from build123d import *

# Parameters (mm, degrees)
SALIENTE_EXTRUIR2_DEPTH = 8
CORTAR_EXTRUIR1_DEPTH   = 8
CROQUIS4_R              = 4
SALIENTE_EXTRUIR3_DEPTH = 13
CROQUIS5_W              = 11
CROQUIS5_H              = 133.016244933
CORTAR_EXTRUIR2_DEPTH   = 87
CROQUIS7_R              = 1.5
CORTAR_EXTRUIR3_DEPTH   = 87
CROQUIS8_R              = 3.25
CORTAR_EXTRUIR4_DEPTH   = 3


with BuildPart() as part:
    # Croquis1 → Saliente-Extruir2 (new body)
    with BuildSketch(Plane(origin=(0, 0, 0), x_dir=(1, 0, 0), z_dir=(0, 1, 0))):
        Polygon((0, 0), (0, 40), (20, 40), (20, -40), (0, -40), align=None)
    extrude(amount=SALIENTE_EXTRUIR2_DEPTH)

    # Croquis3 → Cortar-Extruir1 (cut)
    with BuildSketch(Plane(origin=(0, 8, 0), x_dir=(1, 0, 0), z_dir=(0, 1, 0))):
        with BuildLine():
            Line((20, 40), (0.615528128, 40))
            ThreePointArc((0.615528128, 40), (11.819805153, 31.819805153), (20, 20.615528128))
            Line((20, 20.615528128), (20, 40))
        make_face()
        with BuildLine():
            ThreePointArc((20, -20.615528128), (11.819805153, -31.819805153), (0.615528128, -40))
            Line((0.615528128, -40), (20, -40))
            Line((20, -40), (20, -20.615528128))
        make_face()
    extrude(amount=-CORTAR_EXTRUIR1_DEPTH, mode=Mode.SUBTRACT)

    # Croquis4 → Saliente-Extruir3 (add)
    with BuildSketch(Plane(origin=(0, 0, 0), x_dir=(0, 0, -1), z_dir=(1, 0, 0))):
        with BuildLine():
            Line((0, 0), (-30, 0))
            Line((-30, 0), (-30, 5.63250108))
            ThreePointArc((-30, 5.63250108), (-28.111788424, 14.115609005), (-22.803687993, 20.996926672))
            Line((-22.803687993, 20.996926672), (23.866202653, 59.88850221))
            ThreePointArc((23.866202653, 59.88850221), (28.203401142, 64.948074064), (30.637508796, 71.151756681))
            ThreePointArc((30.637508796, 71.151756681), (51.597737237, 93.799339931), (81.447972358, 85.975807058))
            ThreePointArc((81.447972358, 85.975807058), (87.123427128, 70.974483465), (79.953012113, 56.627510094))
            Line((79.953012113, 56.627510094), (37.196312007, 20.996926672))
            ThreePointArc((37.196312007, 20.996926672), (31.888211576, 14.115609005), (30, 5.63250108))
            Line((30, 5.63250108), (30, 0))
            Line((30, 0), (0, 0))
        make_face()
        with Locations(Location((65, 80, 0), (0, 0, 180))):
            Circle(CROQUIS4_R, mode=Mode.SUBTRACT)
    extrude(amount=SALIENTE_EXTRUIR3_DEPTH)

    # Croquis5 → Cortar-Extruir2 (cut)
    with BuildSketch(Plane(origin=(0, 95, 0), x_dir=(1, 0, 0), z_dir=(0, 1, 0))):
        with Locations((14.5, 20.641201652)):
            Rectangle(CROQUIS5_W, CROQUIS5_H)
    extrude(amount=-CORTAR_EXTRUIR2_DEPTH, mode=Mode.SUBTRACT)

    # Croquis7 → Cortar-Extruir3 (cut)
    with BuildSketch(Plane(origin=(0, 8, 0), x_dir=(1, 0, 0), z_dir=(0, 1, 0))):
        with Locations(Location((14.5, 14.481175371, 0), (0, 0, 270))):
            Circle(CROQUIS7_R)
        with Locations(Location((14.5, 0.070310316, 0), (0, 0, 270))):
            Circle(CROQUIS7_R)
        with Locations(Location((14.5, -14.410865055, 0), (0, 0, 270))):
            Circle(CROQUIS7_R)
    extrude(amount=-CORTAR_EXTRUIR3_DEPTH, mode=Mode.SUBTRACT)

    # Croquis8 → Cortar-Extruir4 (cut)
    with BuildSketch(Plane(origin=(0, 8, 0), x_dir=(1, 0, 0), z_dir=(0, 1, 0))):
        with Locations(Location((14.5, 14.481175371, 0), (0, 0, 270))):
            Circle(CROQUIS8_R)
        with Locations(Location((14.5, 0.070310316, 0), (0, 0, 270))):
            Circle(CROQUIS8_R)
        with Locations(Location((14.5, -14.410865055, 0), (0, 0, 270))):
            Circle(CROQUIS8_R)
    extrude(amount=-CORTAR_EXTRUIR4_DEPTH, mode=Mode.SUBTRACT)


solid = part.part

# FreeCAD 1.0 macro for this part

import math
import FreeCAD as App
import Part
import Sketcher

doc = App.newDocument("Part")
body = doc.addObject("PartDesign::Body", "Body")

# Sketch on XZ plane
sketch1 = body.newObject("Sketcher::SketchObject", "Sketch")
sketch1.AttachmentSupport = (doc.getObject("XZ_Plane"), [""])
sketch1.MapMode = "FlatFace"
sketch1.addGeometry(Part.LineSegment(App.Vector(0, -40, 0), App.Vector(0, 40, 0)), False)
sketch1.addGeometry(Part.LineSegment(App.Vector(0, 40, 0), App.Vector(20, 40, 0)), False)
sketch1.addGeometry(Part.LineSegment(App.Vector(20, 40, 0), App.Vector(20, -40, 0)), False)
sketch1.addGeometry(Part.LineSegment(App.Vector(20, -40, 0), App.Vector(0, -40, 0)), False)
sketch1.addConstraint(Sketcher.Constraint("Coincident", 0, 2, 1, 1))
sketch1.addConstraint(Sketcher.Constraint("Coincident", 1, 2, 2, 1))
sketch1.addConstraint(Sketcher.Constraint("Coincident", 2, 2, 3, 1))
sketch1.addConstraint(Sketcher.Constraint("Coincident", 3, 2, 0, 1))
sketch1.addConstraint(Sketcher.Constraint("Vertical", 0))
sketch1.addConstraint(Sketcher.Constraint("Horizontal", 1))
sketch1.addConstraint(Sketcher.Constraint("Vertical", 2))
sketch1.addConstraint(Sketcher.Constraint("Horizontal", 3))
sketch1.addConstraint(Sketcher.Constraint("Symmetric", 0, 2, 3, 2, -1, 1))
sketch1.addConstraint(Sketcher.Constraint("DistanceX", 1, 1, 1, 2, 20.0))
sketch1.addConstraint(Sketcher.Constraint("DistanceY", 0, 1, 0, 2, 80.0))
pad1 = body.newObject("PartDesign::Pad", "Pad")
pad1.Profile = sketch1
pad1.Length = 8
pad1.Reversed = True

# Sketch on XZ plane
sketch2 = body.newObject("Sketcher::SketchObject", "Sketch001")
sketch2.AttachmentSupport = (doc.getObject("XZ_Plane"), [""])
sketch2.MapMode = "FlatFace"
sketch2.AttachmentOffset = App.Placement(App.Vector(0, 0, -8), App.Rotation())
sketch2.addGeometry(Part.LineSegment(App.Vector(20, -40, 0), App.Vector(1, -40, 0)), False)
sketch2.addGeometry(Part.ArcOfCircle(Part.Circle(App.Vector(-20, 0, 0), App.Vector(0, 0, 1), 45), math.radians(-63), math.radians(-27)), False)
sketch2.addGeometry(Part.LineSegment(App.Vector(20, -21, 0), App.Vector(20, -40, 0)), False)
sketch2.addGeometry(Part.ArcOfCircle(Part.Circle(App.Vector(-20, 0, 0), App.Vector(0, 0, 1), 45), math.radians(27), math.radians(63)), False)
sketch2.addGeometry(Part.LineSegment(App.Vector(1, 40, 0), App.Vector(20, 40, 0)), False)
sketch2.addGeometry(Part.LineSegment(App.Vector(20, 40, 0), App.Vector(20, 21, 0)), False)
sketch2.addConstraint(Sketcher.Constraint("Coincident", 0, 2, 1, 1))
sketch2.addConstraint(Sketcher.Constraint("Coincident", 1, 2, 2, 1))
sketch2.addConstraint(Sketcher.Constraint("Coincident", 2, 2, 0, 1))
sketch2.addConstraint(Sketcher.Constraint("Coincident", 3, 2, 4, 1))
sketch2.addConstraint(Sketcher.Constraint("Coincident", 4, 2, 5, 1))
sketch2.addConstraint(Sketcher.Constraint("Coincident", 5, 2, 3, 1))
sketch2.addConstraint(Sketcher.Constraint("Horizontal", 0))
sketch2.addConstraint(Sketcher.Constraint("Vertical", 2))
sketch2.addConstraint(Sketcher.Constraint("Horizontal", 4))
sketch2.addConstraint(Sketcher.Constraint("Vertical", 5))
sketch2.addConstraint(Sketcher.Constraint("Coincident", 3, 3, 1, 3))
sketch2.addConstraint(Sketcher.Constraint("Equal", 1, 3))
sketch2.addConstraint(Sketcher.Constraint("Symmetric", 0, 2, 3, 2, -1))
sketch2.addConstraint(Sketcher.Constraint("Vertical", 2, 2, 4, 2))
sketch2.addConstraint(Sketcher.Constraint("Equal", 4, 2))
sketch2.addConstraint(Sketcher.Constraint("Radius", 1, 45.0))
sketch2.addConstraint(Sketcher.Constraint("DistanceX", 1, 3, -1, 1, 20.0))
sketch2.addConstraint(Sketcher.Constraint("DistanceY", 0, 2, -1, 1, 40.0))
pocket1 = body.newObject("PartDesign::Pocket", "Pocket")
pocket1.Profile = sketch2
pocket1.Length = 8
pocket1.Reversed = True

# Sketch on YZ plane
sketch3 = body.newObject("Sketcher::SketchObject", "Sketch002")
sketch3.AttachmentSupport = (doc.getObject("YZ_Plane"), [""])
sketch3.MapMode = "FlatFace"
sketch3.addGeometry(Part.LineSegment(App.Vector(5.6, 30, 0), App.Vector(0, 30, 0)), False)
sketch3.addGeometry(Part.LineSegment(App.Vector(0, 30, 0), App.Vector(0, -30, 0)), False)
sketch3.addGeometry(Part.LineSegment(App.Vector(0, -30, 0), App.Vector(5.6, -30, 0)), False)
sketch3.addGeometry(Part.ArcOfCircle(Part.Circle(App.Vector(5.6, -50, 0), App.Vector(0, 0, 1), 20), math.radians(40), math.radians(90)), False)
sketch3.addGeometry(Part.LineSegment(App.Vector(21, -37.2, 0), App.Vector(56.6, -80, 0)), False)
sketch3.addGeometry(Part.ArcOfCircle(Part.Circle(App.Vector(72, -67.1, 0), App.Vector(0, 0, 1), 20), math.radians(-140), math.radians(-46)), False)
sketch3.addGeometry(Part.ArcOfCircle(Part.Circle(App.Vector(65, -60, 0), App.Vector(0, 0, 1), 30), math.radians(-46), math.radians(78)), False)
sketch3.addGeometry(Part.ArcOfCircle(Part.Circle(App.Vector(75.3, -11.1, 0), App.Vector(0, 0, 1), 20), math.radians(-140), math.radians(-102)), False)
sketch3.addGeometry(Part.LineSegment(App.Vector(59.9, -23.9, 0), App.Vector(21, 22.8, 0)), False)
sketch3.addGeometry(Part.ArcOfCircle(Part.Circle(App.Vector(5.6, 10, 0), App.Vector(0, 0, 1), 20), math.radians(40), math.radians(90)), False)
sketch3.addGeometry(Part.Circle(App.Vector(80, -65, 0), App.Vector(0, 0, 1), 4), False)
sketch3.addConstraint(Sketcher.Constraint("Coincident", 0, 2, 1, 1))
sketch3.addConstraint(Sketcher.Constraint("Coincident", 1, 2, 2, 1))
sketch3.addConstraint(Sketcher.Constraint("Tangent", 2, 2, 3, 2))
sketch3.addConstraint(Sketcher.Constraint("Tangent", 3, 1, 4, 1))
sketch3.addConstraint(Sketcher.Constraint("Tangent", 4, 2, 5, 1))
sketch3.addConstraint(Sketcher.Constraint("Tangent", 5, 2, 6, 1))
sketch3.addConstraint(Sketcher.Constraint("Tangent", 6, 2, 7, 2))
sketch3.addConstraint(Sketcher.Constraint("Tangent", 7, 1, 8, 1))
sketch3.addConstraint(Sketcher.Constraint("Tangent", 8, 2, 9, 1))
sketch3.addConstraint(Sketcher.Constraint("Tangent", 9, 2, 0, 1))
sketch3.addConstraint(Sketcher.Constraint("Horizontal", 0))
sketch3.addConstraint(Sketcher.Constraint("Vertical", 1))
sketch3.addConstraint(Sketcher.Constraint("Horizontal", 2))
sketch3.addConstraint(Sketcher.Constraint("Equal", 3, 5))
sketch3.addConstraint(Sketcher.Constraint("Equal", 5, 7))
sketch3.addConstraint(Sketcher.Constraint("Equal", 7, 9))
sketch3.addConstraint(Sketcher.Constraint("Symmetric", 0, 2, 1, 2, -1, 1))
sketch3.addConstraint(Sketcher.Constraint("Parallel", 4, 8))
sketch3.addConstraint(Sketcher.Constraint("Vertical", 3, 3, 9, 3))
sketch3.addConstraint(Sketcher.Constraint("Diameter", 10, 8.0))
sketch3.addConstraint(Sketcher.Constraint("Radius", 3, 20.0))
sketch3.addConstraint(Sketcher.Constraint("Radius", 6, 30.0))
sketch3.addConstraint(Sketcher.Constraint("DistanceY", 1, 2, 1, 1, 60.0))
sketch3.addConstraint(Sketcher.Constraint("DistanceX", -1, 1, 6, 3, 65.0))
sketch3.addConstraint(Sketcher.Constraint("DistanceY", 6, 3, -1, 1, 60.0))
sketch3.addConstraint(Sketcher.Constraint("DistanceX", -1, 1, 10, 3, 80.0))
sketch3.addConstraint(Sketcher.Constraint("DistanceY", 10, 3, -1, 1, 65.0))
sketch3.addConstraint(Sketcher.Constraint("DistanceX", 0, 2, 0, 1, 5.632501))
sketch3.addConstraint(Sketcher.Constraint("DistanceY", 4, 2, 3, 1, 42.7567))
pad2 = body.newObject("PartDesign::Pad", "Pad001")
pad2.Profile = sketch3
pad2.Length = 13

# Sketch on XZ plane
sketch4 = body.newObject("Sketcher::SketchObject", "Sketch003")
sketch4.AttachmentSupport = (doc.getObject("XZ_Plane"), [""])
sketch4.MapMode = "FlatFace"
sketch4.AttachmentOffset = App.Placement(App.Vector(0, 0, -95), App.Rotation())
sketch4.addGeometry(Part.LineSegment(App.Vector(9, -87, 0), App.Vector(9, 46, 0)), False)
sketch4.addGeometry(Part.LineSegment(App.Vector(9, 46, 0), App.Vector(20, 46, 0)), False)
sketch4.addGeometry(Part.LineSegment(App.Vector(20, 46, 0), App.Vector(20, -87, 0)), False)
sketch4.addGeometry(Part.LineSegment(App.Vector(20, -87, 0), App.Vector(9, -87, 0)), False)
sketch4.addConstraint(Sketcher.Constraint("Coincident", 0, 2, 1, 1))
sketch4.addConstraint(Sketcher.Constraint("Coincident", 1, 2, 2, 1))
sketch4.addConstraint(Sketcher.Constraint("Coincident", 2, 2, 3, 1))
sketch4.addConstraint(Sketcher.Constraint("Coincident", 3, 2, 0, 1))
sketch4.addConstraint(Sketcher.Constraint("Vertical", 0))
sketch4.addConstraint(Sketcher.Constraint("Horizontal", 1))
sketch4.addConstraint(Sketcher.Constraint("Vertical", 2))
sketch4.addConstraint(Sketcher.Constraint("Horizontal", 3))
sketch4.addConstraint(Sketcher.Constraint("DistanceX", 1, 1, 1, 2, 11.0))
sketch4.addConstraint(Sketcher.Constraint("DistanceX", -1, 1, 0, 2, 9.0))
sketch4.addConstraint(Sketcher.Constraint("DistanceY", 0, 1, 0, 2, 133.016245))
sketch4.addConstraint(Sketcher.Constraint("DistanceY", -1, 1, 0, 2, 45.866921))
pocket2 = body.newObject("PartDesign::Pocket", "Pocket001")
pocket2.Profile = sketch4
pocket2.Length = 87
pocket2.Reversed = True

# Sketch on XZ plane
sketch5 = body.newObject("Sketcher::SketchObject", "Sketch004")
sketch5.AttachmentSupport = (doc.getObject("XZ_Plane"), [""])
sketch5.MapMode = "FlatFace"
sketch5.AttachmentOffset = App.Placement(App.Vector(0, 0, -8), App.Rotation())
sketch5.addGeometry(Part.Circle(App.Vector(14.5, -14.5, 0), App.Vector(0, 0, 1), 1.5), False)
sketch5.addGeometry(Part.Circle(App.Vector(14.5, -0.1, 0), App.Vector(0, 0, 1), 1.5), False)
sketch5.addGeometry(Part.Circle(App.Vector(14.5, 14.4, 0), App.Vector(0, 0, 1), 1.5), False)
sketch5.addConstraint(Sketcher.Constraint("Equal", 0, 1))
sketch5.addConstraint(Sketcher.Constraint("Equal", 1, 2))
sketch5.addConstraint(Sketcher.Constraint("Vertical", 0, 3, 1, 3))
sketch5.addConstraint(Sketcher.Constraint("Vertical", 1, 3, 2, 3))
sketch5.addConstraint(Sketcher.Constraint("Diameter", 0, 3.0))
sketch5.addConstraint(Sketcher.Constraint("DistanceX", -1, 1, 0, 3, 14.5))
sketch5.addConstraint(Sketcher.Constraint("DistanceY", 1, 3, -1, 1, 0.07031))
sketch5.addConstraint(Sketcher.Constraint("DistanceY", 0, 3, 2, 3, 28.89204))
sketch5.addConstraint(Sketcher.Constraint("DistanceY", 0, 3, -1, 1, 14.481175))
pocket3 = body.newObject("PartDesign::Pocket", "Pocket002")
pocket3.Profile = sketch5
pocket3.Length = 87
pocket3.Reversed = True

# Sketch on XZ plane
sketch6 = body.newObject("Sketcher::SketchObject", "Sketch005")
sketch6.AttachmentSupport = (doc.getObject("XZ_Plane"), [""])
sketch6.MapMode = "FlatFace"
sketch6.AttachmentOffset = App.Placement(App.Vector(0, 0, -8), App.Rotation())
sketch6.addGeometry(Part.Circle(App.Vector(14.5, -14.5, 0), App.Vector(0, 0, 1), 3.2), False)
sketch6.addGeometry(Part.Circle(App.Vector(14.5, -0.1, 0), App.Vector(0, 0, 1), 3.2), False)
sketch6.addGeometry(Part.Circle(App.Vector(14.5, 14.4, 0), App.Vector(0, 0, 1), 3.2), False)
sketch6.addConstraint(Sketcher.Constraint("Equal", 0, 1))
sketch6.addConstraint(Sketcher.Constraint("Equal", 1, 2))
sketch6.addConstraint(Sketcher.Constraint("Vertical", 0, 3, 1, 3))
sketch6.addConstraint(Sketcher.Constraint("Vertical", 1, 3, 2, 3))
sketch6.addConstraint(Sketcher.Constraint("Diameter", 0, 6.5))
sketch6.addConstraint(Sketcher.Constraint("DistanceX", -1, 1, 0, 3, 14.5))
sketch6.addConstraint(Sketcher.Constraint("DistanceY", 1, 3, -1, 1, 0.07031))
sketch6.addConstraint(Sketcher.Constraint("DistanceY", 0, 3, 2, 3, 28.89204))
sketch6.addConstraint(Sketcher.Constraint("DistanceY", 0, 3, -1, 1, 14.481175))
pocket4 = body.newObject("PartDesign::Pocket", "Pocket003")
pocket4.Profile = sketch6
pocket4.Length = 3
pocket4.Reversed = True

doc.recompute()
